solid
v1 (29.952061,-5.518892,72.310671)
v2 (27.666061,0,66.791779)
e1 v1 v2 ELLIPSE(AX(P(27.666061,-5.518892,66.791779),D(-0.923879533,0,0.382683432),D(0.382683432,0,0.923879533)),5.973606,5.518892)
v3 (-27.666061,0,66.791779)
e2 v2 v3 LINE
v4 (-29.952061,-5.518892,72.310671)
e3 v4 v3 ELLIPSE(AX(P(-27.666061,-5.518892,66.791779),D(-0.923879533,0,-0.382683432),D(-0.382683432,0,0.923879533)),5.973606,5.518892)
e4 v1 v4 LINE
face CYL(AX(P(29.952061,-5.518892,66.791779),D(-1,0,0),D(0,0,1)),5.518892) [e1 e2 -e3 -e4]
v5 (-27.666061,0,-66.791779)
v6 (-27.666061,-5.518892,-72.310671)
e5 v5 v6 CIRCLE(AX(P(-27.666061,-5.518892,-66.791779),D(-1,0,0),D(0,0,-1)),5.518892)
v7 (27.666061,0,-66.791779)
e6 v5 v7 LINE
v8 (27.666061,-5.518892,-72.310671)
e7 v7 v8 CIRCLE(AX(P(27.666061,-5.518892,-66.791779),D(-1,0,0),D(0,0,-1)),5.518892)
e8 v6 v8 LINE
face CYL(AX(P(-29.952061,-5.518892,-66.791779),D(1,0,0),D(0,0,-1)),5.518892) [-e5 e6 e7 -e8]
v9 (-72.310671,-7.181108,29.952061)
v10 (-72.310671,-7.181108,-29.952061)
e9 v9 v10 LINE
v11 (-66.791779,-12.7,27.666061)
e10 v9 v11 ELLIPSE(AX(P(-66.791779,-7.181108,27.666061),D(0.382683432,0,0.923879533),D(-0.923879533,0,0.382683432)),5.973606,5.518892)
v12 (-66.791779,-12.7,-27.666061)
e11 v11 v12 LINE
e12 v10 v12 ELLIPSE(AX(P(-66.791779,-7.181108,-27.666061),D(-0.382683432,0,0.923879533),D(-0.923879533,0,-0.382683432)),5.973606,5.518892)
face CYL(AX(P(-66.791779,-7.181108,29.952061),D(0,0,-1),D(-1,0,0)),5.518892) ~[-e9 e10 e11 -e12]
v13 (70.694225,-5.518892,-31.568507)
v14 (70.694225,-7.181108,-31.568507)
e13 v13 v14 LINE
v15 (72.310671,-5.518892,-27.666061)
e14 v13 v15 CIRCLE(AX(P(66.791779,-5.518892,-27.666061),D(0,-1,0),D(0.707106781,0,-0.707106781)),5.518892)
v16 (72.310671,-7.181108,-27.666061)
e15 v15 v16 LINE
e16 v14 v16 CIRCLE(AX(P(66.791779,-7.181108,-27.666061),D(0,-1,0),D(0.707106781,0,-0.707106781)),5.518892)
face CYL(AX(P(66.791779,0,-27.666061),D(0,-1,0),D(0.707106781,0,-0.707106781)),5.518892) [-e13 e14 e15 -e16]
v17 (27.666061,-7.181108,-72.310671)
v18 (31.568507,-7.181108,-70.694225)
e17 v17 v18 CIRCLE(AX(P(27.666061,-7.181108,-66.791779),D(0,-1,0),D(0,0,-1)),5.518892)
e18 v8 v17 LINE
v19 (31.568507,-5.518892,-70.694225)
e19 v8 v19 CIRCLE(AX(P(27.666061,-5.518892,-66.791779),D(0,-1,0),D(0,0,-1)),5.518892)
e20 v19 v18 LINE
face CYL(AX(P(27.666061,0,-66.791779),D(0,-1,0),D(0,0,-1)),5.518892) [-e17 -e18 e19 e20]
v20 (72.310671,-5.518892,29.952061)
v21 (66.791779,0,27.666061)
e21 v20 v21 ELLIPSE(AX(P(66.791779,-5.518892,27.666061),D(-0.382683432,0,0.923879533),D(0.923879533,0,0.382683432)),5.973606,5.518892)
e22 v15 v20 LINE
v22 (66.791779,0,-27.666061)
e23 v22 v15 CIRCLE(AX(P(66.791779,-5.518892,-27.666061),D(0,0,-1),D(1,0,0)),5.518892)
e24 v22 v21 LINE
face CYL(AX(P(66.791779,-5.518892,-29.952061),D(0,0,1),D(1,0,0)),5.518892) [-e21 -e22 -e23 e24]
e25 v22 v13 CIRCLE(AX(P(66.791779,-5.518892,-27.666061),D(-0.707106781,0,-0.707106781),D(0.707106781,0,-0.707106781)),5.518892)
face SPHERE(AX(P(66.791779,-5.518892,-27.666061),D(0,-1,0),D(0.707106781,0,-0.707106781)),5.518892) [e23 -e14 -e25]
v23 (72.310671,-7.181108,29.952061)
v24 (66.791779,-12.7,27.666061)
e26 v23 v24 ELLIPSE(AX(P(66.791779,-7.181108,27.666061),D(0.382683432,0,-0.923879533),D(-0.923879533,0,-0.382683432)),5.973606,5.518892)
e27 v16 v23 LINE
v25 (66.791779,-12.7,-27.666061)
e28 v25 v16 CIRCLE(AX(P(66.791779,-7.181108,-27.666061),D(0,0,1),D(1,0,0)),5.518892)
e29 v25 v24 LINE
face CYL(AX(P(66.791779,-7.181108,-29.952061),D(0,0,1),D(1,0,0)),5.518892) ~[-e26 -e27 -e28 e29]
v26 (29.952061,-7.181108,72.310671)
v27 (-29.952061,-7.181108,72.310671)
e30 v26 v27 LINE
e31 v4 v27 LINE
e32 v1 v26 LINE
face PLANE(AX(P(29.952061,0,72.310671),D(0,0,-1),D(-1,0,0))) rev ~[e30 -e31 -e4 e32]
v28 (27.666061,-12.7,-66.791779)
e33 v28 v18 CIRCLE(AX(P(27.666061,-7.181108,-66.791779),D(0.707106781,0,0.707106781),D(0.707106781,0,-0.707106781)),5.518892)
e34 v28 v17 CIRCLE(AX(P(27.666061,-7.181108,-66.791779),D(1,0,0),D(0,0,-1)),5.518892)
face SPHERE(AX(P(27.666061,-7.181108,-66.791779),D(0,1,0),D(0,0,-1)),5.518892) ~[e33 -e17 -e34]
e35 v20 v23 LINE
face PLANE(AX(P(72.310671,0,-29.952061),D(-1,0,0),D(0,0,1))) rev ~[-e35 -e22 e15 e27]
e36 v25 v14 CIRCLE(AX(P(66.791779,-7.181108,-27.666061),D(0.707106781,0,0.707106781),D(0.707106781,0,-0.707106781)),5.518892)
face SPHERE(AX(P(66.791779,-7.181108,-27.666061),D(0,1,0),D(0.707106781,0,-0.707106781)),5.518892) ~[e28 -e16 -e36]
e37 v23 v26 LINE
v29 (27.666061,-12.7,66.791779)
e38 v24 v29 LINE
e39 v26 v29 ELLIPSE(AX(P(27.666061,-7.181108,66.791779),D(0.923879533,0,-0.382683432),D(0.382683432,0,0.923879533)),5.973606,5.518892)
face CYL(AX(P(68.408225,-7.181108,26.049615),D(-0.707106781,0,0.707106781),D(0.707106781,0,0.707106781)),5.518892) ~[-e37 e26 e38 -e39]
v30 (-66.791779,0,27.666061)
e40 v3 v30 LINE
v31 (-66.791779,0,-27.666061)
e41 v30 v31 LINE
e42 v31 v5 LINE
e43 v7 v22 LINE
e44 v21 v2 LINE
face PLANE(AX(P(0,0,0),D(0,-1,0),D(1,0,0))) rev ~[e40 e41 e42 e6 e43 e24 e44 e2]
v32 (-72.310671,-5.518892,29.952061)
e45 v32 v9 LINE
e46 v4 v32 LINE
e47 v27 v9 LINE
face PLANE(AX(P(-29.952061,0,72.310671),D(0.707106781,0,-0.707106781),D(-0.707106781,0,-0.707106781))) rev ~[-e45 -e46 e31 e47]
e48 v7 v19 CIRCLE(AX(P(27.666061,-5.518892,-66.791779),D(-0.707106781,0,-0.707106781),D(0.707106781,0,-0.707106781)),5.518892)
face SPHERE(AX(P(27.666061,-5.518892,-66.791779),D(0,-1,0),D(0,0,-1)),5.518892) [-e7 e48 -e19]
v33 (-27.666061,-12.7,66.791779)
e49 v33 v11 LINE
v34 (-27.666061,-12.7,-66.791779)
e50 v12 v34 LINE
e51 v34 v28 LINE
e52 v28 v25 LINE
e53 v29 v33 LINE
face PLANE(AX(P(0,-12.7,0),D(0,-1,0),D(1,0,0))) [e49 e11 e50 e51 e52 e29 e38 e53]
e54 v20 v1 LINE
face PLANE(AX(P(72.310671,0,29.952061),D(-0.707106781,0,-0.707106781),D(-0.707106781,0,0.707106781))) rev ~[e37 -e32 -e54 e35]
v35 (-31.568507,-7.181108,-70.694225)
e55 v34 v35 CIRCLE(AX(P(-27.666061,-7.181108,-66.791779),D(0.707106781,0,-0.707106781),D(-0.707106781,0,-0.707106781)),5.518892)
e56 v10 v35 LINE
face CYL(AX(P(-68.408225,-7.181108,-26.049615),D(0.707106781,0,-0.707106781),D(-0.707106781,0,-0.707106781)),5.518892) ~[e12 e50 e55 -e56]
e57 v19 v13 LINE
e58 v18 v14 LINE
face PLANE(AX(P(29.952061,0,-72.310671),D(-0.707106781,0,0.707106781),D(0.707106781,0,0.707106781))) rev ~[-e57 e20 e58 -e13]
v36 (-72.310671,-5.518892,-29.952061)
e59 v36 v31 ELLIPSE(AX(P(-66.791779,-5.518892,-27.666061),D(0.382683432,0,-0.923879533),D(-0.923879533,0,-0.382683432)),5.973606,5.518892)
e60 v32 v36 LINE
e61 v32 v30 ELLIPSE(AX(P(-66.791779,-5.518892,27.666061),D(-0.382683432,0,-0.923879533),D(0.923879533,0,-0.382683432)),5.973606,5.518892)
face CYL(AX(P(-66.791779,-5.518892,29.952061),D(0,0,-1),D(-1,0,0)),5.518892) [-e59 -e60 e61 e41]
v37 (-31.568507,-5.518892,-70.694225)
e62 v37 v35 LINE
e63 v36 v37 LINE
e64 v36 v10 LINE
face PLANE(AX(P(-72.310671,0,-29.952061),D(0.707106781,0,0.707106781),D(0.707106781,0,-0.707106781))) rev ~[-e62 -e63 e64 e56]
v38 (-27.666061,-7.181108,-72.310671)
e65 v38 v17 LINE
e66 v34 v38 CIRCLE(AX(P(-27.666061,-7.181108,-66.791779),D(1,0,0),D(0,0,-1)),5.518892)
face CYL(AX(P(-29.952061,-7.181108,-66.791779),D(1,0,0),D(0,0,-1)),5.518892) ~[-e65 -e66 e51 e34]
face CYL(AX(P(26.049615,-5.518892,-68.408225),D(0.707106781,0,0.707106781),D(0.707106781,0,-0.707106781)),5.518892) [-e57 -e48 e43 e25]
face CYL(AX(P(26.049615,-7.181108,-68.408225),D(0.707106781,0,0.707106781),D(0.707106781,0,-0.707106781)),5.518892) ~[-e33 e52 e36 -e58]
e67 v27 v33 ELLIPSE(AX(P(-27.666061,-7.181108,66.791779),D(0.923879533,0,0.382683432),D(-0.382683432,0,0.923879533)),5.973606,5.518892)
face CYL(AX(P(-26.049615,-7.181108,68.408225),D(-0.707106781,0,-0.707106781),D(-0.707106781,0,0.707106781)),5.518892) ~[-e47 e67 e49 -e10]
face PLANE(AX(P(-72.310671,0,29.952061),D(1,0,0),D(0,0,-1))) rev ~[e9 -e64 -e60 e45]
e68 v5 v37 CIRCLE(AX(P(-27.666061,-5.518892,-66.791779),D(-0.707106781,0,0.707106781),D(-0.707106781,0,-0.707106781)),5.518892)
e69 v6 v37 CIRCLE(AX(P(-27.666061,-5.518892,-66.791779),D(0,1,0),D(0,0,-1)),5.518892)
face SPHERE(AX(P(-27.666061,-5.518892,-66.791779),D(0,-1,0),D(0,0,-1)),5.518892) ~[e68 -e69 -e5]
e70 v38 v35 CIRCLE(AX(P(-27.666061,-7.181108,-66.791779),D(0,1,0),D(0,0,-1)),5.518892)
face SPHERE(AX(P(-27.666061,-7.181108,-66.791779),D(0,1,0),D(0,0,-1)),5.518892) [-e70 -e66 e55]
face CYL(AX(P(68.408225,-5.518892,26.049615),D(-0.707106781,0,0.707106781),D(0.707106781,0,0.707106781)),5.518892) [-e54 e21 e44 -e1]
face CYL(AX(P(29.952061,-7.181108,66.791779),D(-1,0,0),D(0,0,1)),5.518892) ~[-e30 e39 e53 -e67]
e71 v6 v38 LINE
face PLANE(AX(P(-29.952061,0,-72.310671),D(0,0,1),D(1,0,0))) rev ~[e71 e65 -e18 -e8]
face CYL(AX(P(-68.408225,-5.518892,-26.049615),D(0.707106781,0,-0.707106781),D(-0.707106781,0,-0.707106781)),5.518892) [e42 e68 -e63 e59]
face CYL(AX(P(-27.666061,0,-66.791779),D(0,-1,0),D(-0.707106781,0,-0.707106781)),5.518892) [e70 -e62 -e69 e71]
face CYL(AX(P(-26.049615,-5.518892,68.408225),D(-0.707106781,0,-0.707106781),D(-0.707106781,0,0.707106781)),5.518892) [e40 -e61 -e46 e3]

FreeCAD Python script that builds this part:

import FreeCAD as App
import Part
import Sketcher
Q = App.Units.Quantity


def edges_at(feature, points):
    """Names of the edges that pass closest to the given points."""
    edges = feature.Shape.Edges
    near = lambda p: min(range(len(edges)), key=lambda i: edges[i].distToShape(Part.Vertex(*p))[0])
    return sorted({f"Edge{near(p) + 1}" for p in points})


def add_polygon(sketch, points):
    """Adds a closed chain of lines whose ends are joined by coincident constraints."""
    first, n = sketch.GeometryCount, len(points)
    for a, b in zip(points, points[1:] + points[:1]):
        sketch.addGeometry(Part.LineSegment(App.Vector(*a, 0), App.Vector(*b, 0)), False)
    for i in range(n):
        sketch.addConstraint(Sketcher.Constraint("Coincident", first + i, 2, first + (i + 1) % n, 1))

doc = App.newDocument("Part")
body = doc.addObject("PartDesign::Body", "Body")

# Sketch on XZ plane
sketch1 = body.newObject("Sketcher::SketchObject", "Sketch")
sketch1.AttachmentSupport = (doc.getObject("XZ_Plane"), [""])
sketch1.MapMode = "FlatFace"
add_polygon(sketch1, [(-72.310671, 29.952061), (-72.310671, -29.952061), (-29.952061, -72.310671), (29.952061, -72.310671), (72.310671, -29.952061), (72.310671, 29.952061), (29.952061, 72.310671), (-29.952061, 72.310671)])  # lines 0-7
sketch1.addConstraint([
    Sketcher.Constraint("Vertical", 0),
    Sketcher.Constraint("Horizontal", 2),
    Sketcher.Constraint("Vertical", 4),
    Sketcher.Constraint("Horizontal", 6),
    Sketcher.Constraint("Symmetric", 0, 2, 4, 2, -1, 1),
    Sketcher.Constraint("Symmetric", 1, 2, 5, 2, -1, 1),
    Sketcher.Constraint("Perpendicular", 1, 3),
    Sketcher.Constraint("Perpendicular", 5, 7),
    Sketcher.Constraint("Horizontal", 0, 2, 3, 2),
    Sketcher.Constraint("Horizontal", 4, 2, 7, 2),
    Sketcher.Constraint("Vertical", 2, 2, 5, 2),
    Sketcher.Constraint("Equal", 6, 0),
    Sketcher.Constraint("Distance", 1, 59.904121),
    Sketcher.Constraint("DistanceX", 2, 1, 2, 2, 59.904122),
])
pad1 = body.newObject("PartDesign::Pad", "Pad")
pad1.Profile = sketch1
pad1.Length = Q("0.5 in")
doc.recompute()

fillet = body.newObject("PartDesign::Fillet", "Fillet")
fillet.Base = (pad1, edges_at(pad1, [
    (51.131, -12.7, 51.131),
    (0, -12.7, 72.311),
    (72.311, -12.7, 0),
    (72.311, 0, 0),
    (51.131, 0, 51.131),
    (-51.131, -12.7, 51.131),
    (-72.311, -12.7, 0),
    (-72.311, 0, 0),
    (0, 0, 72.311),
    (-51.131, 0, 51.131),
    (-51.131, -12.7, -51.131),
    (-51.131, 0, -51.131),
    (-29.952, -6.35, -72.311),
    (29.952, -6.35, -72.311),
    (0, 0, -72.311),
    (0, -12.7, -72.311),
    (72.311, -6.35, -29.952),
    (51.131, 0, -51.131),
    (51.131, -12.7, -51.131),
]))
fillet.Radius = 5.518892

doc.recompute()
